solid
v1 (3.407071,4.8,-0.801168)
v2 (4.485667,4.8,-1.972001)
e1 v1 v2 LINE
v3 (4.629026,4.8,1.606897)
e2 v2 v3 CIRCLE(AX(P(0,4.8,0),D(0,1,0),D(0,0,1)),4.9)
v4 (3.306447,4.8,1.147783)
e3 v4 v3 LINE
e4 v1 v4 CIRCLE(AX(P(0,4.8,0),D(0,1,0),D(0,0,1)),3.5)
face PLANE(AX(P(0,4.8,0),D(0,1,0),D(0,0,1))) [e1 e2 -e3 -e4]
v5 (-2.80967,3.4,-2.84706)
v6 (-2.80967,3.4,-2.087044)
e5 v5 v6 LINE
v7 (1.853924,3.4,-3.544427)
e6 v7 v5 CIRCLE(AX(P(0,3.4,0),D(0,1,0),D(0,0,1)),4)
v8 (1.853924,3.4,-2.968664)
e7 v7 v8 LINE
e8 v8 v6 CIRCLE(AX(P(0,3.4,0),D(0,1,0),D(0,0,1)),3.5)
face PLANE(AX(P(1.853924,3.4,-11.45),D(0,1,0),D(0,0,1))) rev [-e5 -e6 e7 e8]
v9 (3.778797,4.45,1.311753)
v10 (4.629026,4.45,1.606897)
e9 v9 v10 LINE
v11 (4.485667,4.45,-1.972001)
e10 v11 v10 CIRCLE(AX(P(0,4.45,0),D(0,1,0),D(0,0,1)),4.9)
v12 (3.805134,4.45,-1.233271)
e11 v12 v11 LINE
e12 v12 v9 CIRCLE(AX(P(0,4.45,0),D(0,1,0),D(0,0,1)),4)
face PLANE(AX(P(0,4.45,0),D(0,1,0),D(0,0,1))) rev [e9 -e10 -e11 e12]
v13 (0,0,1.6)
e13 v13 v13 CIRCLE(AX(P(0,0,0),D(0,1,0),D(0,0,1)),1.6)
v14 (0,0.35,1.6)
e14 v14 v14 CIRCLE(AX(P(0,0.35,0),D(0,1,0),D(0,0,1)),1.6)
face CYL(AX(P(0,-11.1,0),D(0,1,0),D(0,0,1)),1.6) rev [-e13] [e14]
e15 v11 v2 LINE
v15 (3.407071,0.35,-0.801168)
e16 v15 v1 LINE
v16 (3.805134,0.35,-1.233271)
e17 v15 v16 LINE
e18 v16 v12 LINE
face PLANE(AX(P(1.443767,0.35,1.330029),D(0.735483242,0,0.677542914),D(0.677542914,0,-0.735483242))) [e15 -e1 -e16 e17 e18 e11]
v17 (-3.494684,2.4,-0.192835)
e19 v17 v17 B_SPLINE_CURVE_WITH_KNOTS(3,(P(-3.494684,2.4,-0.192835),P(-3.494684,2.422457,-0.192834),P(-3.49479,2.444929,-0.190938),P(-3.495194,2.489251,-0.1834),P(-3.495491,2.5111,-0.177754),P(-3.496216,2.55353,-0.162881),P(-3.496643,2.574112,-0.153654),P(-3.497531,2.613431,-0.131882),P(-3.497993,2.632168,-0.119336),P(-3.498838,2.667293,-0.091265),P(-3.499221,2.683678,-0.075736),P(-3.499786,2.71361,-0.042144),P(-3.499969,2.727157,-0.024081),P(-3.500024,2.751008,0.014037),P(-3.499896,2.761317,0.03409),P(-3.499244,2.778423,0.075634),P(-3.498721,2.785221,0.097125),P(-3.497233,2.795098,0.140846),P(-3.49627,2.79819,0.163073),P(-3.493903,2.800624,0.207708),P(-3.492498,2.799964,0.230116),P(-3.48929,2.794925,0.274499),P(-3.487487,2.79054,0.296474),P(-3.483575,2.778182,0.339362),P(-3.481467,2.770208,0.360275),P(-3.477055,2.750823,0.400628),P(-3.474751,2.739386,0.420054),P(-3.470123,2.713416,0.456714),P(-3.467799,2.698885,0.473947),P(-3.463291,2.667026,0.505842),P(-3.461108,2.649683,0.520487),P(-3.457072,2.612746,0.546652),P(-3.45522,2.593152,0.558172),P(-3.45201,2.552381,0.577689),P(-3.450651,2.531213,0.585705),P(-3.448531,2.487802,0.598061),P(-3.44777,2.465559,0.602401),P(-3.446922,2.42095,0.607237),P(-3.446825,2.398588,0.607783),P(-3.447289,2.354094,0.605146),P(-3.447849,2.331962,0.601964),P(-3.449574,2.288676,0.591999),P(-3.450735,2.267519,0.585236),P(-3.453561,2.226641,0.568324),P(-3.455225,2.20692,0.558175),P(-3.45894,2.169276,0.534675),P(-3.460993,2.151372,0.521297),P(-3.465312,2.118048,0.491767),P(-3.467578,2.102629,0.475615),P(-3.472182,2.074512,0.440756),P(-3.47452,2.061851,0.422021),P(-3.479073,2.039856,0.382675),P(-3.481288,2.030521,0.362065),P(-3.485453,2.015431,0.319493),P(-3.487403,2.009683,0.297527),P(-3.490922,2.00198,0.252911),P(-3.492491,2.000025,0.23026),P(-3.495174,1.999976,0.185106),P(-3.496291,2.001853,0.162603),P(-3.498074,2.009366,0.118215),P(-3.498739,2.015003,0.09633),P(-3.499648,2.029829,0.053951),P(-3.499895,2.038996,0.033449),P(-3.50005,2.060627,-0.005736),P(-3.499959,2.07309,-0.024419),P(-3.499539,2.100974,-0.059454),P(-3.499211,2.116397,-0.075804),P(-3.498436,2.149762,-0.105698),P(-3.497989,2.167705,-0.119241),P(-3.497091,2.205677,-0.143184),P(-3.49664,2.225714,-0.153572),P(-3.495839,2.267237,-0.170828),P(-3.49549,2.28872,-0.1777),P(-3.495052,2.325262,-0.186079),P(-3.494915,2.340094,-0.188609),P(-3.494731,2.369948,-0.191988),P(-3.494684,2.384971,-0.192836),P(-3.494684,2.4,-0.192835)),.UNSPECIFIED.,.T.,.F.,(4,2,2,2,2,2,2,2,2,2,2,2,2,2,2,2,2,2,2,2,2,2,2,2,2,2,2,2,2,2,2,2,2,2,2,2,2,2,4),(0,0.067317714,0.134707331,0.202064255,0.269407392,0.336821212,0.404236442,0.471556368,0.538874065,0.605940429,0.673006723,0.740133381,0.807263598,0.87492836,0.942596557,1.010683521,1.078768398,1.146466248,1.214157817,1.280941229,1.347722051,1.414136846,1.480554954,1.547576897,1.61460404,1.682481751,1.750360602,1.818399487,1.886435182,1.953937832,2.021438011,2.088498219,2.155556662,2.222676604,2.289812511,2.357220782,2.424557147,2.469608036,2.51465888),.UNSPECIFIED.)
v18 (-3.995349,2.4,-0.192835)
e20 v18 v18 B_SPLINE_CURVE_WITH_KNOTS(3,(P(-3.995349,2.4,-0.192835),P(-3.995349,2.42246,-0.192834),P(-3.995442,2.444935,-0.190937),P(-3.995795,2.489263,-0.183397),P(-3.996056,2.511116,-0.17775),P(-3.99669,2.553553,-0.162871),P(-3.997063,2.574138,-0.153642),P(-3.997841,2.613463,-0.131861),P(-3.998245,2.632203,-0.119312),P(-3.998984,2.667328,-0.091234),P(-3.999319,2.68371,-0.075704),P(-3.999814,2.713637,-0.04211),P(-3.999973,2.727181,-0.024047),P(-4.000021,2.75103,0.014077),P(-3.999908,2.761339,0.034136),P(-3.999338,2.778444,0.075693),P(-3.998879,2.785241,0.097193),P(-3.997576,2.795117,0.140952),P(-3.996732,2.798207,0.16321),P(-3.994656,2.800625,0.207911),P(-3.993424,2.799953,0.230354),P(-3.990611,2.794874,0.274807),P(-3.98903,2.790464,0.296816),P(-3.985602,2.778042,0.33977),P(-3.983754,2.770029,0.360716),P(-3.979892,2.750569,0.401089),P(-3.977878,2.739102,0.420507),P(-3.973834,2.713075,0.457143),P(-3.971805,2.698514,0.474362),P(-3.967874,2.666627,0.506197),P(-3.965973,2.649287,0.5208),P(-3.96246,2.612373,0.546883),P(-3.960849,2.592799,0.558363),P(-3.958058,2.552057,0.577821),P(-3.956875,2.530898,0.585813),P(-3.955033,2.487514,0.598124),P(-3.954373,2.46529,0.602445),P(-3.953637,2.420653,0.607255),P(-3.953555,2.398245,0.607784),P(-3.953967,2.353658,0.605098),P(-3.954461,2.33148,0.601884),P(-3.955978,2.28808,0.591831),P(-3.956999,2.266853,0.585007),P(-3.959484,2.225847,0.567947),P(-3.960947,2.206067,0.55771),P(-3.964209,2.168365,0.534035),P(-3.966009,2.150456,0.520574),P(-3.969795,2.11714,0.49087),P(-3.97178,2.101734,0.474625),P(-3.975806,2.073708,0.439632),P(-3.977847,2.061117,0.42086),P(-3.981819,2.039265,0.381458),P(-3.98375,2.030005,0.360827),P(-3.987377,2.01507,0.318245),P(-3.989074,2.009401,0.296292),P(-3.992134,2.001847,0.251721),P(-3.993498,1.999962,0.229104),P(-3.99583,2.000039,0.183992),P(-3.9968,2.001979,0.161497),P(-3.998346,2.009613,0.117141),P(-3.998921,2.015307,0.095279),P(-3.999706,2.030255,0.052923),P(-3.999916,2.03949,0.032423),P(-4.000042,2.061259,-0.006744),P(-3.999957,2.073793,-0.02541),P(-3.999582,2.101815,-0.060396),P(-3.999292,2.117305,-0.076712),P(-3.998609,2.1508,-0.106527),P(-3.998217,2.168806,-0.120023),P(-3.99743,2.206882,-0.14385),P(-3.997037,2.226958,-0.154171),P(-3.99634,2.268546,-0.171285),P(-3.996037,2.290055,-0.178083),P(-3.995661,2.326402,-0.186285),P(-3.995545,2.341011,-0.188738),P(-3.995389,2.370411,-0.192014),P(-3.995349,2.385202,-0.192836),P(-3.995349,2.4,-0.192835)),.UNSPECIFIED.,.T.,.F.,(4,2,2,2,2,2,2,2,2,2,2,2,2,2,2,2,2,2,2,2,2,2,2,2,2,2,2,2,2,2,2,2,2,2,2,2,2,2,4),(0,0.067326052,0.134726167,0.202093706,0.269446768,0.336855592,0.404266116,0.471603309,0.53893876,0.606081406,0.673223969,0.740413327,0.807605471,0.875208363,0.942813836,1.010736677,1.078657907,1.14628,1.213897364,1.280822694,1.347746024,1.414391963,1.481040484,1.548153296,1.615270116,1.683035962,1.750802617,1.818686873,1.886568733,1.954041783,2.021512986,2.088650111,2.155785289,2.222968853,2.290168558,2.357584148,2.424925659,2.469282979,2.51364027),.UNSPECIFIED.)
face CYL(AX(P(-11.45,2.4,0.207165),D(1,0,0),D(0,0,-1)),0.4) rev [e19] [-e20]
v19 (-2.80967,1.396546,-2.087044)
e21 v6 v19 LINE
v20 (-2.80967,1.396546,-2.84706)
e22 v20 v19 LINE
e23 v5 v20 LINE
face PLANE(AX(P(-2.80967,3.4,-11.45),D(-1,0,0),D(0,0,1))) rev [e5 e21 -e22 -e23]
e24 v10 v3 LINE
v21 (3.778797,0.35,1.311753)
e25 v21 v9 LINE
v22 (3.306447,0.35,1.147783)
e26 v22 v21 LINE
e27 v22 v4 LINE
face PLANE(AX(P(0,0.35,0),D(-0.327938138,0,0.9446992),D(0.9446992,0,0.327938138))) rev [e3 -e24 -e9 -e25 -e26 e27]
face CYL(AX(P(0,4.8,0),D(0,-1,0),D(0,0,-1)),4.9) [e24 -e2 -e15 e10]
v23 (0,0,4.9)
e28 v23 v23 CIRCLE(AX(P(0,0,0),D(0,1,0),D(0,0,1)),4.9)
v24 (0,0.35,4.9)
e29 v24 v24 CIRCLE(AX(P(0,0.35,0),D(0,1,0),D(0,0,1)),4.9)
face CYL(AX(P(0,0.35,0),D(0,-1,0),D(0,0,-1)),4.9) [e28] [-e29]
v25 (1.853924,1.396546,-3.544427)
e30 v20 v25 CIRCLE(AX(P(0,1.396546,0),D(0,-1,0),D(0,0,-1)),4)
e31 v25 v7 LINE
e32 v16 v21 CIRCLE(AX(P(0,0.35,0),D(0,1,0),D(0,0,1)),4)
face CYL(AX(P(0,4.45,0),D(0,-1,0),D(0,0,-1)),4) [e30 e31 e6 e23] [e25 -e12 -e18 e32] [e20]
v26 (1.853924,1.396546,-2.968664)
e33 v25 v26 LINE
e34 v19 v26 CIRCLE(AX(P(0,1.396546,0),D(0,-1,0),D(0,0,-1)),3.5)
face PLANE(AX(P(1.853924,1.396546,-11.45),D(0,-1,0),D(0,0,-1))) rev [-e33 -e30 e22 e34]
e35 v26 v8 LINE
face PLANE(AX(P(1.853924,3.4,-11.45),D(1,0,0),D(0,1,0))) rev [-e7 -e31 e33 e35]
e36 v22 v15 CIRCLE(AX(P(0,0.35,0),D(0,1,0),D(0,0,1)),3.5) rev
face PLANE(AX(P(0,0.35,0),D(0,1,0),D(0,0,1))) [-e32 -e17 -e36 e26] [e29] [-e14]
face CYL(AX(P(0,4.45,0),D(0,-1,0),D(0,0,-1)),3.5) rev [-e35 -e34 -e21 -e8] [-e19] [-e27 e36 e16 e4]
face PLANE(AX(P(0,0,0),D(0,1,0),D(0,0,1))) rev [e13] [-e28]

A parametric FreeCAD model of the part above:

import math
import FreeCAD as App
import Part
import Sketcher


def add_polygon(sketch, points):
    """Adds a closed chain of lines whose ends are joined by coincident constraints."""
    first, n = sketch.GeometryCount, len(points)
    for a, b in zip(points, points[1:] + points[:1]):
        sketch.addGeometry(Part.LineSegment(App.Vector(*a, 0), App.Vector(*b, 0)), False)
    for i in range(n):
        sketch.addConstraint(Sketcher.Constraint("Coincident", first + i, 2, first + (i + 1) % n, 1))

doc = App.newDocument("Part")
body = doc.addObject("PartDesign::Body", "Body")

# Sketch on XZ plane
sketch1 = body.newObject("Sketcher::SketchObject", "Sketch")
sketch1.AttachmentSupport = (doc.getObject("XZ_Plane"), [""])
sketch1.MapMode = "FlatFace"
sketch1.addGeometry(Part.Circle(App.Vector(0, 0, 0), App.Vector(0, 0, 1), 4.9), False)
sketch1.addConstraint([
    Sketcher.Constraint("Coincident", 0, 3, -1, 1),
    Sketcher.Constraint("Diameter", 0, 9.8),
])
pad1 = body.newObject("PartDesign::Pad", "Pad")
pad1.Profile = sketch1
pad1.Length = 0.35
pad1.Reversed = True

# Sketch on XZ plane
sketch2 = body.newObject("Sketcher::SketchObject", "Sketch001")
sketch2.AttachmentSupport = (doc.getObject("XZ_Plane"), [""])
sketch2.MapMode = "FlatFace"
sketch2.AttachmentOffset = App.Placement(App.Vector(0, 0, -0.35), App.Rotation())
sketch2.addGeometry([
    Part.Circle(App.Vector(0, 0, 0), App.Vector(0, 0, 1), 4),
    Part.Circle(App.Vector(0, 0, 0), App.Vector(0, 0, 1), 3.5),
], False)
sketch2.addConstraint([
    Sketcher.Constraint("Coincident", 0, 3, -1, 1),
    Sketcher.Constraint("Coincident", 1, 3, -1, 1),
    Sketcher.Constraint("Diameter", 0, 8.0),
    Sketcher.Constraint("Diameter", 1, 7.0),
])
pad2 = body.newObject("PartDesign::Pad", "Pad001")
pad2.Profile = sketch2
pad2.Length = 4.1
pad2.Reversed = True

# Sketch on XZ plane
sketch3 = body.newObject("Sketcher::SketchObject", "Sketch002")
sketch3.AttachmentSupport = (doc.getObject("XZ_Plane"), [""])
sketch3.MapMode = "FlatFace"
sketch3.AttachmentOffset = App.Placement(App.Vector(0, 0, -4.45), App.Rotation())
sketch3.addGeometry([
    Part.Circle(App.Vector(0, 0, 0), App.Vector(0, 0, 1), 4.9),
    Part.Circle(App.Vector(0, 0, 0), App.Vector(0, 0, 1), 3.5),
], False)
sketch3.addConstraint([
    Sketcher.Constraint("Coincident", 0, 3, -1, 1),
    Sketcher.Constraint("Coincident", 1, 3, -1, 1),
    Sketcher.Constraint("Diameter", 1, 7.0),
    Sketcher.Constraint("Diameter", 0, 9.8),
])
pad3 = body.newObject("PartDesign::Pad", "Pad002")
pad3.Profile = sketch3
pad3.Length = 0.35
pad3.Reversed = True

# Sketch on XZ plane
sketch4 = body.newObject("Sketcher::SketchObject", "Sketch003")
sketch4.AttachmentSupport = (doc.getObject("XZ_Plane"), [""])
sketch4.MapMode = "FlatFace"
sketch4.AttachmentOffset = App.Placement(App.Vector(0, 0, -0.35), App.Rotation())
sketch4.addGeometry([
    Part.LineSegment(App.Vector(4.5, -2, 0), App.Vector(3.4, -0.8, 0)),  # 0
    Part.ArcOfCircle(Part.Circle(App.Vector(0, 0, 0), App.Vector(0, 0, 1), 3.5), math.radians(-13.23), math.radians(0)),  # 1
    Part.ArcOfCircle(Part.Circle(App.Vector(0, 0, 0), App.Vector(0, 0, 1), 3.5), math.radians(0), math.radians(19.14)),  # 2
    Part.LineSegment(App.Vector(3.3, 1.1, 0), App.Vector(4.6, 1.6, 0)),  # 3
    Part.ArcOfCircle(Part.Circle(App.Vector(0, 0, 0), App.Vector(0, 0, 1), 4.9), math.radians(0), math.radians(19.14)),  # 4
    Part.ArcOfCircle(Part.Circle(App.Vector(0, 0, 0), App.Vector(0, 0, 1), 4.9), math.radians(-24), math.radians(0)),  # 5
], False)
sketch4.addConstraint([
    Sketcher.Constraint("Coincident", 0, 2, 1, 1),
    Sketcher.Constraint("Tangent", 1, 2, 2, 1),
    Sketcher.Constraint("Coincident", 2, 2, 3, 1),
    Sketcher.Constraint("Coincident", 3, 2, 4, 2),
    Sketcher.Constraint("Tangent", 4, 1, 5, 2),
    Sketcher.Constraint("Coincident", 5, 1, 0, 1),
    Sketcher.Constraint("Coincident", 1, 3, -1, 1),
    Sketcher.Constraint("Coincident", 4, 3, -1, 1),
    Sketcher.Constraint("Equal", 1, 2),
    Sketcher.Constraint("Equal", 4, 5),
    Sketcher.Constraint("PointOnObject", 1, 2, -1),
    Sketcher.Constraint("PointOnObject", 4, 1, -1),
    Sketcher.Constraint("Radius", 1, 3.5),
    Sketcher.Constraint("Radius", 4, 4.9),
    Sketcher.Constraint("DistanceY", 5, 1, -1, 1, 1.972001),
    Sketcher.Constraint("DistanceX", -1, 1, 0, 2, 3.407071),
    Sketcher.Constraint("DistanceY", 0, 2, 2, 2, 1.948951),
    Sketcher.Constraint("DistanceX", 2, 2, 3, 2, 1.322579),
])
pocket1 = body.newObject("PartDesign::Pocket", "Pocket")
pocket1.Profile = sketch4
pocket1.Length = 4.45

# Sketch on XY plane
sketch5 = body.newObject("Sketcher::SketchObject", "Sketch004")
sketch5.AttachmentSupport = (doc.getObject("XY_Plane"), [""])
sketch5.MapMode = "FlatFace"
add_polygon(sketch5, [(-2.8, 3.4), (-2.8, 1.4), (1.9, 1.4), (1.9, 3.4)])  # lines 0-3
sketch5.addConstraint([
    Sketcher.Constraint("Vertical", 0),
    Sketcher.Constraint("Horizontal", 1),
    Sketcher.Constraint("Vertical", 2),
    Sketcher.Constraint("Horizontal", 3),
    Sketcher.Constraint("DistanceY", -1, 1, 2, 2, 3.4),
    Sketcher.Constraint("DistanceX", 1, 1, 1, 2, 4.663594),
    Sketcher.Constraint("DistanceY", 0, 2, 0, 1, 2.003454),
    Sketcher.Constraint("DistanceX", 0, 2, -1, 1, 2.80967),
])
pocket2 = body.newObject("PartDesign::Pocket", "Pocket001")
pocket2.Profile = sketch5
pocket2.Length = 11.45

# Sketch on XZ plane
sketch6 = body.newObject("Sketcher::SketchObject", "Sketch005")
sketch6.AttachmentSupport = (doc.getObject("XZ_Plane"), [""])
sketch6.MapMode = "FlatFace"
sketch6.AttachmentOffset = App.Placement(App.Vector(0, 0, -0.35), App.Rotation())
sketch6.addGeometry(Part.Circle(App.Vector(0, 0, 0), App.Vector(0, 0, 1), 1.6), False)
sketch6.addConstraint([
    Sketcher.Constraint("Coincident", 0, 3, -1, 1),
    Sketcher.Constraint("Diameter", 0, 3.2),
])
pocket3 = body.newObject("PartDesign::Pocket", "Pocket002")
pocket3.Profile = sketch6
pocket3.Length = 11.45
pocket3.Reversed = True

# Sketch on YZ plane
sketch7 = body.newObject("Sketcher::SketchObject", "Sketch006")
sketch7.AttachmentSupport = (doc.getObject("YZ_Plane"), [""])
sketch7.MapMode = "FlatFace"
sketch7.addGeometry([
    Part.ArcOfCircle(Part.Circle(App.Vector(2.4, 0.21, 0), App.Vector(0, 0, 1), 0.4), math.radians(-90), math.radians(0)),
    Part.ArcOfCircle(Part.Circle(App.Vector(2.4, 0.21, 0), App.Vector(0, 0, 1), 0.4), math.radians(0), math.radians(180)),
    Part.ArcOfCircle(Part.Circle(App.Vector(2.4, 0.21, 0), App.Vector(0, 0, 1), 0.4), math.radians(-180), math.radians(-90)),
], False)
sketch7.addConstraint([
    Sketcher.Constraint("Tangent", 0, 2, 1, 1),
    Sketcher.Constraint("Tangent", 1, 2, 2, 1),
    Sketcher.Constraint("Tangent", 2, 2, 0, 1),
    Sketcher.Constraint("Horizontal", 2, 3, 0, 2),
    Sketcher.Constraint("Horizontal", 0, 2, 1, 2),
    Sketcher.Constraint("Vertical", 1, 3, 2, 2),
    Sketcher.Constraint("Radius", 0, 0.4),
    Sketcher.Constraint("DistanceX", -1, 1, 1, 2, 2.0),
    Sketcher.Constraint("DistanceY", -1, 1, 0, 3, 0.207165),
])
pocket4 = body.newObject("PartDesign::Pocket", "Pocket003")
pocket4.Profile = sketch7
pocket4.Length = 11.45

doc.recompute()
